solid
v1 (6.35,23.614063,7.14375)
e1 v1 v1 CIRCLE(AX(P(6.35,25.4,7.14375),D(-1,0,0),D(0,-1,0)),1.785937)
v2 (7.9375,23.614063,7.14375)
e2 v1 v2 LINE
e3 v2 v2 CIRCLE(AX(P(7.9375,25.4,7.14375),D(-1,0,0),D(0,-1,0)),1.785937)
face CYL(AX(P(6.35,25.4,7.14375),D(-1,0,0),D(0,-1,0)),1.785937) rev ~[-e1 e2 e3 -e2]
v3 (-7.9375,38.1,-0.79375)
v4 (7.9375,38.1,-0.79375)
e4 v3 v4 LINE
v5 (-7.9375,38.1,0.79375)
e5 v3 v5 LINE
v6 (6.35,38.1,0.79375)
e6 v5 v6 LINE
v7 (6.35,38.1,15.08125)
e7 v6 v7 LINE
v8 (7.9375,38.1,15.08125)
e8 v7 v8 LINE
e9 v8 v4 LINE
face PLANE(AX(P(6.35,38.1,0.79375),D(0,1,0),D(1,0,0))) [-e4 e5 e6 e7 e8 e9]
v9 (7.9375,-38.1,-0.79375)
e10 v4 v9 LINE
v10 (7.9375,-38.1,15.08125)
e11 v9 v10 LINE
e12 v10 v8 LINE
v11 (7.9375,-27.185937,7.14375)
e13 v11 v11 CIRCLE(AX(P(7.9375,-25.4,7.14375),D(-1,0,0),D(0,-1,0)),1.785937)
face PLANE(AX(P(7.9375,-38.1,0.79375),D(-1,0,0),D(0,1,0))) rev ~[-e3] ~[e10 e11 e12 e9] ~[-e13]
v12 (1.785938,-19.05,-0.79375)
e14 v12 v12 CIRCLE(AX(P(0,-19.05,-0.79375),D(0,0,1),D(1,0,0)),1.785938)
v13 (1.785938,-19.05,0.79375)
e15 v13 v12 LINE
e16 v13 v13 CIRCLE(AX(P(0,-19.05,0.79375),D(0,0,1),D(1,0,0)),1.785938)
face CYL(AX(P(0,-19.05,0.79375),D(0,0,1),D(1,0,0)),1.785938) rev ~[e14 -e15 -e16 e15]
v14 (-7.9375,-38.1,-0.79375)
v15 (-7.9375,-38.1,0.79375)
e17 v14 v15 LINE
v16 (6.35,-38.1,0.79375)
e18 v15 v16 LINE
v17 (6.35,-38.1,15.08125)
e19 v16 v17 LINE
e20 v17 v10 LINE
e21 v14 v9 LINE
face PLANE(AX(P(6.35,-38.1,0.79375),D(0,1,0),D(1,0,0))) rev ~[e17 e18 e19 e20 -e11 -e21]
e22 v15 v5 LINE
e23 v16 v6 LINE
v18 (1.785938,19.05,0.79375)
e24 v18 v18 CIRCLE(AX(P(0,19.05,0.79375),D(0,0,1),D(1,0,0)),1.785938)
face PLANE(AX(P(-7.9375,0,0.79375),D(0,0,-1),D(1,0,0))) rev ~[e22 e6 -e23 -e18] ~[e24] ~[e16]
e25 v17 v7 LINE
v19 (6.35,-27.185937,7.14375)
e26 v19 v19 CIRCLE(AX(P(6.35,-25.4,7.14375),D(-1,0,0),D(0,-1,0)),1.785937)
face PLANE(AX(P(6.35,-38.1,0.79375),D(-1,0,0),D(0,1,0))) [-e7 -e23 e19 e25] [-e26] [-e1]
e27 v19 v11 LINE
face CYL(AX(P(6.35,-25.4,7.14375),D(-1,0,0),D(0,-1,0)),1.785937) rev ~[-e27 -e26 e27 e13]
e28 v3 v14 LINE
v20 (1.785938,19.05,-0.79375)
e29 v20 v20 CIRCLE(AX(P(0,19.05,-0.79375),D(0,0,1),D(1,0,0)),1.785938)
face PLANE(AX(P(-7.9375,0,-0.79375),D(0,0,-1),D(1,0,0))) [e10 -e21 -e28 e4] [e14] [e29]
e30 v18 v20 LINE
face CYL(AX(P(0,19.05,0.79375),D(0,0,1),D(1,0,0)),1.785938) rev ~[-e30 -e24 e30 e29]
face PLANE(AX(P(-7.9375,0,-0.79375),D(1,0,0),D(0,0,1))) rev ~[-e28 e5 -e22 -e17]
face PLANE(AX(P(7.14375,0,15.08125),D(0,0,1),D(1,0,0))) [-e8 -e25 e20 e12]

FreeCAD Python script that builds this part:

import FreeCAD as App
import Part
import Sketcher
Q = App.Units.Quantity

doc = App.newDocument("Part")
body = doc.addObject("PartDesign::Body", "Body")

# Sketch on XZ plane
sketch1 = body.newObject("Sketcher::SketchObject", "Sketch")
sketch1.AttachmentSupport = (doc.getObject("XZ_Plane"), [""])
sketch1.MapMode = "FlatFace"
sketch1.addGeometry([
    Part.LineSegment(App.Vector(-7.9, 0.8, 0), App.Vector(-7.9, -0.8, 0)),
    Part.LineSegment(App.Vector(-7.9, -0.8, 0), App.Vector(7.9, -0.8, 0)),
    Part.LineSegment(App.Vector(7.9, -0.8, 0), App.Vector(7.9, 0.8, 0)),
    Part.LineSegment(App.Vector(7.9, 0.8, 0), App.Vector(-7.9, 0.8, 0)),
], False)
sketch1.addConstraint([
    Sketcher.Constraint("Coincident", 0, 2, 1, 1),
    Sketcher.Constraint("Coincident", 1, 2, 2, 1),
    Sketcher.Constraint("Coincident", 2, 2, 3, 1),
    Sketcher.Constraint("Coincident", 3, 2, 0, 1),
    Sketcher.Constraint("Vertical", 0),
    Sketcher.Constraint("Horizontal", 1),
    Sketcher.Constraint("Vertical", 2),
    Sketcher.Constraint("Horizontal", 3),
    Sketcher.Constraint("Symmetric", 0, 2, 2, 2, -1, 1),
    Sketcher.Constraint("DistanceX", 1, 1, 1, 2, Q("0.625 in")),
    Sketcher.Constraint("DistanceY", 0, 2, 0, 1, Q("0.0625 in")),
])
pad1 = body.newObject("PartDesign::Pad", "Pad")
pad1.Profile = sketch1
pad1.Length = Q("3 in")
pad1.Midplane = True

# Sketch on XY plane
sketch2 = body.newObject("Sketcher::SketchObject", "Sketch001")
sketch2.AttachmentSupport = (doc.getObject("XY_Plane"), [""])
sketch2.MapMode = "FlatFace"
sketch2.AttachmentOffset = App.Placement(App.Vector(0, 0, 0.03125 * 25.4), App.Rotation())
sketch2.addGeometry([
    Part.LineSegment(App.Vector(6.3, 38.1, 0), App.Vector(6.3, -38.1, 0)),
    Part.LineSegment(App.Vector(6.3, -38.1, 0), App.Vector(7.9, -38.1, 0)),
    Part.LineSegment(App.Vector(7.9, -38.1, 0), App.Vector(7.9, 38.1, 0)),
    Part.LineSegment(App.Vector(7.9, 38.1, 0), App.Vector(6.3, 38.1, 0)),
], False)
sketch2.addConstraint([
    Sketcher.Constraint("Coincident", 0, 2, 1, 1),
    Sketcher.Constraint("Coincident", 1, 2, 2, 1),
    Sketcher.Constraint("Coincident", 2, 2, 3, 1),
    Sketcher.Constraint("Coincident", 3, 2, 0, 1),
    Sketcher.Constraint("Vertical", 0),
    Sketcher.Constraint("Horizontal", 1),
    Sketcher.Constraint("Vertical", 2),
    Sketcher.Constraint("Horizontal", 3),
    Sketcher.Constraint("DistanceY", 0, 2, 0, 1, Q("3 in")),
    Sketcher.Constraint("DistanceY", 0, 2, -1, 1, Q("1.5 in")),
    Sketcher.Constraint("DistanceX", 1, 1, 1, 2, Q("0.0625 in")),
    Sketcher.Constraint("DistanceX", -1, 1, 0, 2, Q("0.25 in")),
])
pad2 = body.newObject("PartDesign::Pad", "Pad001")
pad2.Profile = sketch2
pad2.Length = Q("0.5625 in")

# Sketch on YZ plane
sketch3 = body.newObject("Sketcher::SketchObject", "Sketch002")
sketch3.AttachmentSupport = (doc.getObject("YZ_Plane"), [""])
sketch3.MapMode = "FlatFace"
sketch3.AttachmentOffset = App.Placement(App.Vector(0, 0, 0.25 * 25.4), App.Rotation())
sketch3.addGeometry([
    Part.Circle(App.Vector(25.4, 7.1, 0), App.Vector(0, 0, 1), 1.8),
    Part.Circle(App.Vector(-25.4, 7.1, 0), App.Vector(0, 0, 1), 1.8),
], False)
sketch3.addConstraint([
    Sketcher.Constraint("Equal", 0, 1),
    Sketcher.Constraint("Symmetric", 0, 3, 1, 3, -2),
    Sketcher.Constraint("Diameter", 0, Q("0.140625 in")),
    Sketcher.Constraint("DistanceX", -1, 1, 0, 3, Q("1 in")),
    Sketcher.Constraint("DistanceY", -1, 1, 0, 3, Q("0.28125 in")),
])
pocket1 = body.newObject("PartDesign::Pocket", "Pocket")
pocket1.Profile = sketch3
pocket1.Type = "ThroughAll"
pocket1.Reversed = True

# Sketch on XY plane
sketch4 = body.newObject("Sketcher::SketchObject", "Sketch003")
sketch4.AttachmentSupport = (doc.getObject("XY_Plane"), [""])
sketch4.MapMode = "FlatFace"
sketch4.AttachmentOffset = App.Placement(App.Vector(0, 0, 0.03125 * 25.4), App.Rotation())
sketch4.addGeometry([
    Part.Circle(App.Vector(0, 19.1, 0), App.Vector(0, 0, 1), 1.8),
    Part.Circle(App.Vector(0, -19.1, 0), App.Vector(0, 0, 1), 1.8),
], False)
sketch4.addConstraint([
    Sketcher.Constraint("Equal", 0, 1),
    Sketcher.Constraint("Symmetric", 0, 3, 1, 3, -1, 1),
    Sketcher.Constraint("PointOnObject", 0, 3, -2),
    Sketcher.Constraint("Diameter", 0, Q("0.140625 in")),
    Sketcher.Constraint("DistanceY", 1, 3, 0, 3, Q("1.5 in")),
])
pocket2 = body.newObject("PartDesign::Pocket", "Pocket001")
pocket2.Profile = sketch4
pocket2.Type = "ThroughAll"

doc.recompute()
